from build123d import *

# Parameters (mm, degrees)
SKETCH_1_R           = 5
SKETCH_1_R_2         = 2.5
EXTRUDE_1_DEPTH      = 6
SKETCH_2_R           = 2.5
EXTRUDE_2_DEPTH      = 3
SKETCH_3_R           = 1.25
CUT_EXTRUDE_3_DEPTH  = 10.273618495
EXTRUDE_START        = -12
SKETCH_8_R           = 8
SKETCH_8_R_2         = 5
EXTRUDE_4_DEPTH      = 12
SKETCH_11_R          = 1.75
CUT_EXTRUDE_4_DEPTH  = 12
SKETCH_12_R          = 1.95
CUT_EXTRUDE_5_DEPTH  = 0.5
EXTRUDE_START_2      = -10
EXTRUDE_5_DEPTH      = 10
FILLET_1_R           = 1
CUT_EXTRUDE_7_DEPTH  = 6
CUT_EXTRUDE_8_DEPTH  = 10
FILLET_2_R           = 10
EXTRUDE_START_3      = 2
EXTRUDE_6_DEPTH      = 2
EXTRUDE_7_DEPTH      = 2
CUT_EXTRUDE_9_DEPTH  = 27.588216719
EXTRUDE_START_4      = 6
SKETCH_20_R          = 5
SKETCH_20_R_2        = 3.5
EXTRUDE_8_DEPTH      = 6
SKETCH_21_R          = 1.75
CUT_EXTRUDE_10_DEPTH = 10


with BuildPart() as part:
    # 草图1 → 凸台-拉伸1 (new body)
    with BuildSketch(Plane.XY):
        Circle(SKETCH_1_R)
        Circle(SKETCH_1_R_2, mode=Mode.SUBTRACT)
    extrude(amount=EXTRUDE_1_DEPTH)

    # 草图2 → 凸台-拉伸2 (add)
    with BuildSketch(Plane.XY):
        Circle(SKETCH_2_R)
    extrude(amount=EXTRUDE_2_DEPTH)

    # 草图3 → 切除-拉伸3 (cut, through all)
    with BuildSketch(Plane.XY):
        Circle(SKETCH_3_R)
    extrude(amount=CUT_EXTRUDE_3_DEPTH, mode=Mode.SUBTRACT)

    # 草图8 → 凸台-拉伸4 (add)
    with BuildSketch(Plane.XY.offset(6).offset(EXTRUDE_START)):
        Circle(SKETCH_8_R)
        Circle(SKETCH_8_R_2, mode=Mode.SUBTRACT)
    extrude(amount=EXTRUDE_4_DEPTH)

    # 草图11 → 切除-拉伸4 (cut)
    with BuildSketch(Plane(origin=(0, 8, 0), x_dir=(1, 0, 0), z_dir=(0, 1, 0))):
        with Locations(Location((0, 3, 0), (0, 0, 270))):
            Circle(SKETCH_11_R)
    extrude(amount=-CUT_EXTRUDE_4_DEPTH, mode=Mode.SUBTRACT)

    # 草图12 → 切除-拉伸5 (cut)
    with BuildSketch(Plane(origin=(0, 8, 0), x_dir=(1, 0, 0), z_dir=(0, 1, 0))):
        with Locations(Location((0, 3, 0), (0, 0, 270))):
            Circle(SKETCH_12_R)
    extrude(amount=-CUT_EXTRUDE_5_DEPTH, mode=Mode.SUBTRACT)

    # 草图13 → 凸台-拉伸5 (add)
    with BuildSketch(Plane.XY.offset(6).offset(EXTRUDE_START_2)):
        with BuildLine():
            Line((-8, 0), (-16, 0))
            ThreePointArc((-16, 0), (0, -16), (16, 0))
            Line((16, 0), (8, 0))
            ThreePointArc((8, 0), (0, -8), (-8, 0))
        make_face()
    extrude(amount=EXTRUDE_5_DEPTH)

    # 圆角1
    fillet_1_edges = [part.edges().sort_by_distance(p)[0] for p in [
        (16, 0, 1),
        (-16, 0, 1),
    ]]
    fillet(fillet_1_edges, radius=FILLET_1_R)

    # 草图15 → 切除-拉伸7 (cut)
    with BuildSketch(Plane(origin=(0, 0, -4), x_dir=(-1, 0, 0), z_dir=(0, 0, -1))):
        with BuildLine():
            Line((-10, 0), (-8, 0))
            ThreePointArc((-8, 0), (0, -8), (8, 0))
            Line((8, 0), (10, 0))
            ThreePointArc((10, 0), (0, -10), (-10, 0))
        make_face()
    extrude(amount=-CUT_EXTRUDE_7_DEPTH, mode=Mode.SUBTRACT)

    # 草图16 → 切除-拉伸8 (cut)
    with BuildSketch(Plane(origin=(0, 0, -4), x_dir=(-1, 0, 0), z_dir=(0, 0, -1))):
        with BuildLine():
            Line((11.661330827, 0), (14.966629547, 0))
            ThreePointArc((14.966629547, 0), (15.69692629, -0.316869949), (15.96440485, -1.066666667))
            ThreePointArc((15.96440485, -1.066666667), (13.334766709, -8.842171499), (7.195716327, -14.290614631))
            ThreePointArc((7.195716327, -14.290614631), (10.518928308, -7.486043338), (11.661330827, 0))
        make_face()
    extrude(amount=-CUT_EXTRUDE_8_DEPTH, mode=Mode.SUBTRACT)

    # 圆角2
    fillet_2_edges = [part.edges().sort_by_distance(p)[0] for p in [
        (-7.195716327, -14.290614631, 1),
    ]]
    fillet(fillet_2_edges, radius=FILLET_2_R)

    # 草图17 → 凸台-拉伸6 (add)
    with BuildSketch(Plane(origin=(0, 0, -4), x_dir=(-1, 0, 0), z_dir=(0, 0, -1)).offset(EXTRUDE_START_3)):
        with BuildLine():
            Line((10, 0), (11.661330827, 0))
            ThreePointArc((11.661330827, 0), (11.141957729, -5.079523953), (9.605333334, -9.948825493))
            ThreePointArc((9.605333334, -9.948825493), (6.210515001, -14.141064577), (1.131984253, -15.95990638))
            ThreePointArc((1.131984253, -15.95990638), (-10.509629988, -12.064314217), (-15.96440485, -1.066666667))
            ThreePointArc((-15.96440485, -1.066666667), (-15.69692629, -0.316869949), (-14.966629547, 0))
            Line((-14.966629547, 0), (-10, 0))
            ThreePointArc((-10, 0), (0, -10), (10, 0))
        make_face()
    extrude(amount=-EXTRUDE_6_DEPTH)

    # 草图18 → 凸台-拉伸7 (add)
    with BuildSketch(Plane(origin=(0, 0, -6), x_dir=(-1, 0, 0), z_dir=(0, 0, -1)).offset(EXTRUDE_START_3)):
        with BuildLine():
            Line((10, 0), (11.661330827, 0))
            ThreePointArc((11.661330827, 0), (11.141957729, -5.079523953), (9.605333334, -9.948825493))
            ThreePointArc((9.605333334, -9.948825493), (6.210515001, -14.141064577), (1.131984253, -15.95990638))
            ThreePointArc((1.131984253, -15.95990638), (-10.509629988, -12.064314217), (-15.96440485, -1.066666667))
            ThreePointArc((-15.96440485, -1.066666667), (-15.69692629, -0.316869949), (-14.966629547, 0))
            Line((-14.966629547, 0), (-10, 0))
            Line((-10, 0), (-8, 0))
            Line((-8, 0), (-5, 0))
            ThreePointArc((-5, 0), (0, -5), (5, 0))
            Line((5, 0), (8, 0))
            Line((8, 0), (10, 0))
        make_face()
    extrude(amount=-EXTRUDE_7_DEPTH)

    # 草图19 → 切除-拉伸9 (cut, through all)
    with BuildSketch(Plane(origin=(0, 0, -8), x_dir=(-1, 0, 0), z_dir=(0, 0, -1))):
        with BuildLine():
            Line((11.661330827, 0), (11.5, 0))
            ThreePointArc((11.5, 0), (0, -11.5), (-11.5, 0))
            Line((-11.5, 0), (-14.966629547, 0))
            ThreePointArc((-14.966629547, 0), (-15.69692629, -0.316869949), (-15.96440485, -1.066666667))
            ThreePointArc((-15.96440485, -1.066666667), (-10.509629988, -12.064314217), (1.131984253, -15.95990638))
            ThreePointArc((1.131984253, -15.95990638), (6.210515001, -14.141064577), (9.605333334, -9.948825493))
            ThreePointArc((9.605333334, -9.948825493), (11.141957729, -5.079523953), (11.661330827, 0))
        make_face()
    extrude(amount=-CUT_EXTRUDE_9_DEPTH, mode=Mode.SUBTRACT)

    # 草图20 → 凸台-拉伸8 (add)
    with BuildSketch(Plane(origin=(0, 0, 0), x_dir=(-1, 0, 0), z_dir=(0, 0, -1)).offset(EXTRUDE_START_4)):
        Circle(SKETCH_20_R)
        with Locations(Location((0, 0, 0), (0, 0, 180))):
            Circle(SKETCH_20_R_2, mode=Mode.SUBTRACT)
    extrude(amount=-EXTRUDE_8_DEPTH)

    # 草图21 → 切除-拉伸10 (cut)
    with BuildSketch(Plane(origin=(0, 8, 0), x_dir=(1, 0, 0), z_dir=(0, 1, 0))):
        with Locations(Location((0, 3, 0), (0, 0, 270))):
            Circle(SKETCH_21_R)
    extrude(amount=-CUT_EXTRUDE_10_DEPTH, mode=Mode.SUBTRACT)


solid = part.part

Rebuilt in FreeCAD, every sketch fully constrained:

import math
import FreeCAD as App
import Part
import Sketcher

V = App.Vector
Q = App.Units.Quantity


def edges_at(feature, points):
    """Names of the edges that pass closest to the given points."""
    edges = feature.Shape.Edges
    near = lambda p: min(range(len(edges)), key=lambda i: edges[i].distToShape(Part.Vertex(*p))[0])
    return sorted({f"Edge{near(p) + 1}" for p in points})

doc = App.newDocument("Part")
body = doc.addObject("PartDesign::Body", "Body")

# Sketch on XY plane
sketch1 = body.newObject("Sketcher::SketchObject", "Sketch")
sketch1.AttachmentSupport = (doc.getObject("XY_Plane"), [""])
sketch1.MapMode = "FlatFace"
sketch1.addGeometry(Part.Circle(V(0, 0, 0), V(0, 0, 1), 5), False)
sketch1.addGeometry(Part.Circle(V(0, 0, 0), V(0, 0, 1), 2.5), False)
sketch1.addConstraint(Sketcher.Constraint("Coincident", 0, 3, -1, 1))
sketch1.addConstraint(Sketcher.Constraint("Coincident", 1, 3, -1, 1))
sketch1.addConstraint(Sketcher.Constraint("Diameter", 0, Q("10 mm")))
sketch1.addConstraint(Sketcher.Constraint("Diameter", 1, Q("5 mm")))
pad1 = body.newObject("PartDesign::Pad", "Pad")
pad1.Profile = sketch1
pad1.Length = 6

# Sketch on XY plane
sketch2 = body.newObject("Sketcher::SketchObject", "Sketch001")
sketch2.AttachmentSupport = (doc.getObject("XY_Plane"), [""])
sketch2.MapMode = "FlatFace"
sketch2.addGeometry(Part.Circle(V(0, 0, 0), V(0, 0, 1), 2.5), False)
sketch2.addConstraint(Sketcher.Constraint("Coincident", 0, 3, -1, 1))
sketch2.addConstraint(Sketcher.Constraint("Diameter", 0, Q("5 mm")))
pad2 = body.newObject("PartDesign::Pad", "Pad001")
pad2.Profile = sketch2
pad2.Length = 3

# Sketch on XY plane
sketch3 = body.newObject("Sketcher::SketchObject", "Sketch002")
sketch3.AttachmentSupport = (doc.getObject("XY_Plane"), [""])
sketch3.MapMode = "FlatFace"
sketch3.addGeometry(Part.Circle(V(0, 0, 0), V(0, 0, 1), 1.2), False)
sketch3.addConstraint(Sketcher.Constraint("Coincident", 0, 3, -1, 1))
sketch3.addConstraint(Sketcher.Constraint("Diameter", 0, Q("2.5 mm")))
pocket1 = body.newObject("PartDesign::Pocket", "Pocket")
pocket1.Profile = sketch3
pocket1.Type = "ThroughAll"
pocket1.Reversed = True

# Sketch on XY plane
sketch4 = body.newObject("Sketcher::SketchObject", "Sketch003")
sketch4.AttachmentSupport = (doc.getObject("XY_Plane"), [""])
sketch4.MapMode = "FlatFace"
sketch4.AttachmentOffset = App.Placement(V(0, 0, -6), App.Rotation())
sketch4.addGeometry(Part.Circle(V(0, 0, 0), V(0, 0, 1), 8), False)
sketch4.addGeometry(Part.Circle(V(0, 0, 0), V(0, 0, 1), 5), False)
sketch4.addConstraint(Sketcher.Constraint("Coincident", 0, 3, -1, 1))
sketch4.addConstraint(Sketcher.Constraint("Coincident", 1, 3, -1, 1))
sketch4.addConstraint(Sketcher.Constraint("Diameter", 0, Q("16 mm")))
sketch4.addConstraint(Sketcher.Constraint("Diameter", 1, Q("10 mm")))
pad3 = body.newObject("PartDesign::Pad", "Pad002")
pad3.Profile = sketch4
pad3.Length = 12

# Sketch on XZ plane
sketch5 = body.newObject("Sketcher::SketchObject", "Sketch004")
sketch5.AttachmentSupport = (doc.getObject("XZ_Plane"), [""])
sketch5.MapMode = "FlatFace"
sketch5.AttachmentOffset = App.Placement(V(0, 0, -8), App.Rotation())
sketch5.addGeometry(Part.Circle(V(0, -3, 0), V(0, 0, 1), 1.8), False)
sketch5.addConstraint(Sketcher.Constraint("PointOnObject", 0, 3, -2))
sketch5.addConstraint(Sketcher.Constraint("Diameter", 0, Q("3.5 mm")))
sketch5.addConstraint(Sketcher.Constraint("DistanceY", 0, 3, -1, 1, Q("3 mm")))
pocket2 = body.newObject("PartDesign::Pocket", "Pocket001")
pocket2.Profile = sketch5
pocket2.Length = 12
pocket2.Reversed = True

# Sketch on XZ plane
sketch6 = body.newObject("Sketcher::SketchObject", "Sketch005")
sketch6.AttachmentSupport = (doc.getObject("XZ_Plane"), [""])
sketch6.MapMode = "FlatFace"
sketch6.AttachmentOffset = App.Placement(V(0, 0, -8), App.Rotation())
sketch6.addGeometry(Part.Circle(V(0, -3, 0), V(0, 0, 1), 1.9), False)
sketch6.addConstraint(Sketcher.Constraint("PointOnObject", 0, 3, -2))
sketch6.addConstraint(Sketcher.Constraint("Diameter", 0, Q("3.9 mm")))
sketch6.addConstraint(Sketcher.Constraint("DistanceY", 0, 3, -1, 1, Q("3 mm")))
pocket3 = body.newObject("PartDesign::Pocket", "Pocket002")
pocket3.Profile = sketch6
pocket3.Length = 0.5
pocket3.Reversed = True

# Sketch on XY plane
sketch7 = body.newObject("Sketcher::SketchObject", "Sketch006")
sketch7.AttachmentSupport = (doc.getObject("XY_Plane"), [""])
sketch7.MapMode = "FlatFace"
sketch7.AttachmentOffset = App.Placement(V(0, 0, -4), App.Rotation())
sketch7.addGeometry(Part.LineSegment(V(-8, 0, 0), V(-16, 0, 0)), False)
sketch7.addGeometry(Part.ArcOfCircle(Part.Circle(V(0, 0, 0), V(0, 0, 1), 16), math.radians(180), math.radians(360)), False)
sketch7.addGeometry(Part.LineSegment(V(16, 0, 0), V(8, 0, 0)), False)
sketch7.addGeometry(Part.ArcOfCircle(Part.Circle(V(0, 0, 0), V(0, 0, 1), 8), math.radians(180), math.radians(360)), False)
sketch7.addConstraint(Sketcher.Constraint("Coincident", 0, 2, 1, 1))
sketch7.addConstraint(Sketcher.Constraint("Coincident", 1, 2, 2, 1))
sketch7.addConstraint(Sketcher.Constraint("Coincident", 2, 2, 3, 2))
sketch7.addConstraint(Sketcher.Constraint("Coincident", 3, 1, 0, 1))
sketch7.addConstraint(Sketcher.Constraint("Horizontal", 0))
sketch7.addConstraint(Sketcher.Constraint("Horizontal", 2))
sketch7.addConstraint(Sketcher.Constraint("Coincident", 1, 3, -1, 1))
sketch7.addConstraint(Sketcher.Constraint("Coincident", 3, 3, -1, 1))
sketch7.addConstraint(Sketcher.Constraint("PointOnObject", 0, 2, -1))
sketch7.addConstraint(Sketcher.Constraint("PointOnObject", 1, 2, -1))
sketch7.addConstraint(Sketcher.Constraint("Radius", 1, Q("16 mm")))
sketch7.addConstraint(Sketcher.Constraint("Radius", 3, Q("8 mm")))
pad4 = body.newObject("PartDesign::Pad", "Pad003")
pad4.Profile = sketch7
pad4.Length = 10
doc.recompute()

fillet = body.newObject("PartDesign::Fillet", "Fillet")
fillet.Base = (pad4, edges_at(pad4, [(16, 0, 1), (-16, 0, 1)]))
fillet.Radius = 1

# Sketch on XY plane
sketch8 = body.newObject("Sketcher::SketchObject", "Sketch007")
sketch8.AttachmentSupport = (doc.getObject("XY_Plane"), [""])
sketch8.MapMode = "FlatFace"
sketch8.AttachmentOffset = App.Placement(V(0, 0, -4), App.Rotation())
sketch8.addGeometry(Part.LineSegment(V(8, 0, 0), V(10, 0, 0)), False)
sketch8.addGeometry(Part.ArcOfCircle(Part.Circle(V(0, 0, 0), V(0, 0, 1), 10), math.radians(180), math.radians(360)), False)
sketch8.addGeometry(Part.LineSegment(V(-10, 0, 0), V(-8, 0, 0)), False)
sketch8.addGeometry(Part.ArcOfCircle(Part.Circle(V(0, 0, 0), V(0, 0, 1), 8), math.radians(180), math.radians(360)), False)
sketch8.addConstraint(Sketcher.Constraint("Coincident", 0, 2, 1, 2))
sketch8.addConstraint(Sketcher.Constraint("Coincident", 1, 1, 2, 1))
sketch8.addConstraint(Sketcher.Constraint("Coincident", 2, 2, 3, 1))
sketch8.addConstraint(Sketcher.Constraint("Coincident", 3, 2, 0, 1))
sketch8.addConstraint(Sketcher.Constraint("Horizontal", 0))
sketch8.addConstraint(Sketcher.Constraint("Horizontal", 2))
sketch8.addConstraint(Sketcher.Constraint("Coincident", 1, 3, -1, 1))
sketch8.addConstraint(Sketcher.Constraint("Coincident", 3, 3, -1, 1))
sketch8.addConstraint(Sketcher.Constraint("PointOnObject", 0, 2, -1))
sketch8.addConstraint(Sketcher.Constraint("PointOnObject", 1, 1, -1))
sketch8.addConstraint(Sketcher.Constraint("Radius", 1, Q("10 mm")))
sketch8.addConstraint(Sketcher.Constraint("Radius", 3, Q("8 mm")))
pocket4 = body.newObject("PartDesign::Pocket", "Pocket003")
pocket4.Profile = sketch8
pocket4.Length = 6
pocket4.Reversed = True

# Sketch on XY plane
sketch9 = body.newObject("Sketcher::SketchObject", "Sketch008")
sketch9.AttachmentSupport = (doc.getObject("XY_Plane"), [""])
sketch9.MapMode = "FlatFace"
sketch9.AttachmentOffset = App.Placement(V(0, 0, -4), App.Rotation())
sketch9.addGeometry(Part.LineSegment(V(-15, 0, 0), V(-11.7, 0, 0)), False)
sketch9.addGeometry(Part.ArcOfCircle(Part.Circle(V(13.4, 0, 0), V(0, 0, 1), 25.1), math.radians(-180), math.radians(-145)), False)
sketch9.addGeometry(Part.ArcOfCircle(Part.Circle(V(0, 0, 0), V(0, 0, 1), 16), math.radians(-176), math.radians(-117)), False)
sketch9.addGeometry(Part.ArcOfCircle(Part.Circle(V(-15, -1, 0), V(0, 0, 1), 1), math.radians(90), math.radians(184)), False)
sketch9.addConstraint(Sketcher.Constraint("Coincident", 0, 2, 1, 1))
sketch9.addConstraint(Sketcher.Constraint("Coincident", 1, 2, 2, 2))
sketch9.addConstraint(Sketcher.Constraint("Tangent", 2, 1, 3, 2))
sketch9.addConstraint(Sketcher.Constraint("Tangent", 3, 1, 0, 1))
sketch9.addConstraint(Sketcher.Constraint("Horizontal", 0))
sketch9.addConstraint(Sketcher.Constraint("Coincident", 2, 3, -1, 1))
sketch9.addConstraint(Sketcher.Constraint("PointOnObject", 1, 3, -1))
sketch9.addConstraint(Sketcher.Constraint("PointOnObject", 0, 2, -1))
sketch9.addConstraint(Sketcher.Constraint("Radius", 2, Q("16 mm")))
sketch9.addConstraint(Sketcher.Constraint("Radius", 3, Q("1 mm")))
sketch9.addConstraint(Sketcher.Constraint("DistanceX", 0, 1, 0, 2, Q("3.305299 mm")))
sketch9.addConstraint(Sketcher.Constraint("Radius", 1, Q("25.098828 mm")))
pocket5 = body.newObject("PartDesign::Pocket", "Pocket004")
pocket5.Profile = sketch9
pocket5.Length = 10
pocket5.Reversed = True
doc.recompute()

fillet2 = body.newObject("PartDesign::Fillet", "Fillet001")
fillet2.Base = (pocket5, edges_at(pocket5, [(-7.196, -14.291, 1)]))
fillet2.Radius = 10

# Sketch on XY plane
sketch10 = body.newObject("Sketcher::SketchObject", "Sketch009")
sketch10.AttachmentSupport = (doc.getObject("XY_Plane"), [""])
sketch10.MapMode = "FlatFace"
sketch10.AttachmentOffset = App.Placement(V(0, 0, -6), App.Rotation())
sketch10.addGeometry(Part.LineSegment(V(-11.7, 0, 0), V(-10, 0, 0)), False)
sketch10.addGeometry(Part.ArcOfCircle(Part.Circle(V(0, 0, 0), V(0, 0, 1), 10), math.radians(180), math.radians(360)), False)
sketch10.addGeometry(Part.LineSegment(V(10, 0, 0), V(15, 0, 0)), False)
sketch10.addGeometry(Part.ArcOfCircle(Part.Circle(V(15, -1, 0), V(0, 0, 1), 1), math.radians(-4), math.radians(90)), False)
sketch10.addGeometry(Part.ArcOfCircle(Part.Circle(V(0, 0, 0), V(0, 0, 1), 16), math.radians(-94), math.radians(-4)), False)
sketch10.addGeometry(Part.ArcOfCircle(Part.Circle(V(-0.4, -6, 0), V(0, 0, 1), 10), math.radians(-157), math.radians(-94)), False)
sketch10.addGeometry(Part.ArcOfCircle(Part.Circle(V(13.4, 0, 0), V(0, 0, 1), 25.1), math.radians(180), math.radians(203)), False)
sketch10.addConstraint(Sketcher.Constraint("Coincident", 0, 2, 1, 1))
sketch10.addConstraint(Sketcher.Constraint("Coincident", 1, 2, 2, 1))
sketch10.addConstraint(Sketcher.Constraint("Tangent", 2, 2, 3, 2))
sketch10.addConstraint(Sketcher.Constraint("Tangent", 3, 1, 4, 2))
sketch10.addConstraint(Sketcher.Constraint("Tangent", 4, 1, 5, 2))
sketch10.addConstraint(Sketcher.Constraint("Tangent", 5, 1, 6, 2))
sketch10.addConstraint(Sketcher.Constraint("Coincident", 6, 1, 0, 1))
sketch10.addConstraint(Sketcher.Constraint("Horizontal", 0))
sketch10.addConstraint(Sketcher.Constraint("Horizontal", 2))
sketch10.addConstraint(Sketcher.Constraint("Coincident", 1, 3, -1, 1))
sketch10.addConstraint(Sketcher.Constraint("Coincident", 4, 3, -1, 1))
sketch10.addConstraint(Sketcher.Constraint("Equal", 1, 5))
sketch10.addConstraint(Sketcher.Constraint("PointOnObject", 6, 3, -1))
sketch10.addConstraint(Sketcher.Constraint("PointOnObject", 0, 2, -1))
sketch10.addConstraint(Sketcher.Constraint("PointOnObject", 1, 2, -1))
sketch10.addConstraint(Sketcher.Constraint("Radius", 1, Q("10 mm")))
sketch10.addConstraint(Sketcher.Constraint("Radius", 3, Q("1 mm")))
sketch10.addConstraint(Sketcher.Constraint("Radius", 4, Q("16 mm")))
sketch10.addConstraint(Sketcher.Constraint("Radius", 6, Q("25.098828 mm")))
sketch10.addConstraint(Sketcher.Constraint("DistanceX", 0, 1, 0, 2, Q("1.661331 mm")))
pad5 = body.newObject("PartDesign::Pad", "Pad004")
pad5.Profile = sketch10
pad5.Length = 2

# Sketch on XY plane
sketch11 = body.newObject("Sketcher::SketchObject", "Sketch010")
sketch11.AttachmentSupport = (doc.getObject("XY_Plane"), [""])
sketch11.MapMode = "FlatFace"
sketch11.AttachmentOffset = App.Placement(V(0, 0, -8), App.Rotation())
sketch11.addGeometry(Part.ArcOfCircle(Part.Circle(V(13.4, 0, 0), V(0, 0, 1), 25.1), math.radians(180), math.radians(203)), False)
sketch11.addGeometry(Part.LineSegment(V(-11.7, 0, 0), V(-5, 0, 0)), False)
sketch11.addGeometry(Part.ArcOfCircle(Part.Circle(V(0, 0, 0), V(0, 0, 1), 5), math.radians(180), math.radians(360)), False)
sketch11.addGeometry(Part.LineSegment(V(5, 0, 0), V(15, 0, 0)), False)
sketch11.addGeometry(Part.ArcOfCircle(Part.Circle(V(15, -1, 0), V(0, 0, 1), 1), math.radians(-4), math.radians(90)), False)
sketch11.addGeometry(Part.ArcOfCircle(Part.Circle(V(0, 0, 0), V(0, 0, 1), 16), math.radians(-94), math.radians(-4)), False)
sketch11.addGeometry(Part.ArcOfCircle(Part.Circle(V(-0.4, -6, 0), V(0, 0, 1), 10), math.radians(-157), math.radians(-94)), False)
sketch11.addConstraint(Sketcher.Constraint("Coincident", 0, 1, 1, 1))
sketch11.addConstraint(Sketcher.Constraint("Coincident", 1, 2, 2, 1))
sketch11.addConstraint(Sketcher.Constraint("Coincident", 2, 2, 3, 1))
sketch11.addConstraint(Sketcher.Constraint("Tangent", 3, 2, 4, 2))
sketch11.addConstraint(Sketcher.Constraint("Tangent", 4, 1, 5, 2))
sketch11.addConstraint(Sketcher.Constraint("Tangent", 5, 1, 6, 2))
sketch11.addConstraint(Sketcher.Constraint("Tangent", 6, 1, 0, 2))
sketch11.addConstraint(Sketcher.Constraint("Horizontal", 1))
sketch11.addConstraint(Sketcher.Constraint("Horizontal", 3))
sketch11.addConstraint(Sketcher.Constraint("Coincident", 2, 3, -1, 1))
sketch11.addConstraint(Sketcher.Constraint("Coincident", 5, 3, -1, 1))
sketch11.addConstraint(Sketcher.Constraint("PointOnObject", 0, 3, -1))
sketch11.addConstraint(Sketcher.Constraint("PointOnObject", 0, 1, -1))
sketch11.addConstraint(Sketcher.Constraint("PointOnObject", 2, 2, -1))
sketch11.addConstraint(Sketcher.Constraint("Radius", 2, Q("5 mm")))
sketch11.addConstraint(Sketcher.Constraint("Radius", 4, Q("1 mm")))
sketch11.addConstraint(Sketcher.Constraint("Radius", 5, Q("16 mm")))
sketch11.addConstraint(Sketcher.Constraint("Radius", 6, Q("10 mm")))
sketch11.addConstraint(Sketcher.Constraint("Radius", 0, Q("25.098828 mm")))
sketch11.addConstraint(Sketcher.Constraint("DistanceX", 1, 1, 1, 2, Q("6.661331 mm")))
pad6 = body.newObject("PartDesign::Pad", "Pad005")
pad6.Profile = sketch11
pad6.Length = 2

# Sketch on XY plane
sketch12 = body.newObject("Sketcher::SketchObject", "Sketch011")
sketch12.AttachmentSupport = (doc.getObject("XY_Plane"), [""])
sketch12.MapMode = "FlatFace"
sketch12.AttachmentOffset = App.Placement(V(0, 0, -8), App.Rotation())
sketch12.addGeometry(Part.LineSegment(V(-11.66, 0, 0), V(-11.5, 0, 0)), False)
sketch12.addGeometry(Part.ArcOfCircle(Part.Circle(V(0, 0, 0), V(0, 0, 1), 11.5), math.radians(180), math.radians(360)), False)
sketch12.addGeometry(Part.LineSegment(V(11.5, 0, 0), V(14.97, 0, 0)), False)
sketch12.addGeometry(Part.ArcOfCircle(Part.Circle(V(14.97, -1, 0), V(0, 0, 1), 1), math.radians(-4), math.radians(90)), False)
sketch12.addGeometry(Part.ArcOfCircle(Part.Circle(V(0, 0, 0), V(0, 0, 1), 16), math.radians(-94), math.radians(-4)), False)
sketch12.addGeometry(Part.ArcOfCircle(Part.Circle(V(-0.42, -5.98, 0), V(0, 0, 1), 10), math.radians(-157), math.radians(-94)), False)
sketch12.addGeometry(Part.ArcOfCircle(Part.Circle(V(13.44, 0, 0), V(0, 0, 1), 25.1), math.radians(180), math.radians(203)), False)
sketch12.addConstraint(Sketcher.Constraint("Coincident", 0, 2, 1, 1))
sketch12.addConstraint(Sketcher.Constraint("Coincident", 1, 2, 2, 1))
sketch12.addConstraint(Sketcher.Constraint("Tangent", 2, 2, 3, 2))
sketch12.addConstraint(Sketcher.Constraint("Tangent", 3, 1, 4, 2))
sketch12.addConstraint(Sketcher.Constraint("Tangent", 4, 1, 5, 2))
sketch12.addConstraint(Sketcher.Constraint("Tangent", 5, 1, 6, 2))
sketch12.addConstraint(Sketcher.Constraint("Coincident", 6, 1, 0, 1))
sketch12.addConstraint(Sketcher.Constraint("Horizontal", 0))
sketch12.addConstraint(Sketcher.Constraint("Horizontal", 2))
sketch12.addConstraint(Sketcher.Constraint("Coincident", 1, 3, -1, 1))
sketch12.addConstraint(Sketcher.Constraint("Coincident", 4, 3, -1, 1))
sketch12.addConstraint(Sketcher.Constraint("PointOnObject", 6, 3, -1))
sketch12.addConstraint(Sketcher.Constraint("PointOnObject", 0, 2, -1))
sketch12.addConstraint(Sketcher.Constraint("PointOnObject", 1, 2, -1))
sketch12.addConstraint(Sketcher.Constraint("Radius", 3, Q("1 mm")))
sketch12.addConstraint(Sketcher.Constraint("Radius", 4, Q("16 mm")))
sketch12.addConstraint(Sketcher.Constraint("Radius", 5, Q("10 mm")))
sketch12.addConstraint(Sketcher.Constraint("Radius", 1, Q("11.5 mm")))
sketch12.addConstraint(Sketcher.Constraint("Radius", 6, Q("25.098828 mm")))
sketch12.addConstraint(Sketcher.Constraint("DistanceX", 0, 1, 0, 2, Q("0.161331 mm")))
pocket6 = body.newObject("PartDesign::Pocket", "Pocket005")
pocket6.Profile = sketch12
pocket6.Type = "ThroughAll"
pocket6.Reversed = True

# Sketch on XY plane
sketch13 = body.newObject("Sketcher::SketchObject", "Sketch012")
sketch13.AttachmentSupport = (doc.getObject("XY_Plane"), [""])
sketch13.MapMode = "FlatFace"
sketch13.AttachmentOffset = App.Placement(V(0, 0, -6), App.Rotation())
sketch13.addGeometry(Part.Circle(V(0, 0, 0), V(0, 0, 1), 5), False)
sketch13.addGeometry(Part.Circle(V(0, 0, 0), V(0, 0, 1), 3.5), False)
sketch13.addConstraint(Sketcher.Constraint("Coincident", 0, 3, -1, 1))
sketch13.addConstraint(Sketcher.Constraint("Coincident", 1, 3, -1, 1))
sketch13.addConstraint(Sketcher.Constraint("Diameter", 0, Q("10 mm")))
sketch13.addConstraint(Sketcher.Constraint("Diameter", 1, Q("7 mm")))
pad7 = body.newObject("PartDesign::Pad", "Pad006")
pad7.Profile = sketch13
pad7.Length = 6

# Sketch on XZ plane
sketch14 = body.newObject("Sketcher::SketchObject", "Sketch013")
sketch14.AttachmentSupport = (doc.getObject("XZ_Plane"), [""])
sketch14.MapMode = "FlatFace"
sketch14.AttachmentOffset = App.Placement(V(0, 0, -8), App.Rotation())
sketch14.addGeometry(Part.Circle(V(0, -3, 0), V(0, 0, 1), 1.8), False)
sketch14.addConstraint(Sketcher.Constraint("PointOnObject", 0, 3, -2))
sketch14.addConstraint(Sketcher.Constraint("Diameter", 0, Q("3.5 mm")))
sketch14.addConstraint(Sketcher.Constraint("DistanceY", 0, 3, -1, 1, Q("3 mm")))
pocket7 = body.newObject("PartDesign::Pocket", "Pocket006")
pocket7.Profile = sketch14
pocket7.Length = 10
pocket7.Reversed = True

doc.recompute()
